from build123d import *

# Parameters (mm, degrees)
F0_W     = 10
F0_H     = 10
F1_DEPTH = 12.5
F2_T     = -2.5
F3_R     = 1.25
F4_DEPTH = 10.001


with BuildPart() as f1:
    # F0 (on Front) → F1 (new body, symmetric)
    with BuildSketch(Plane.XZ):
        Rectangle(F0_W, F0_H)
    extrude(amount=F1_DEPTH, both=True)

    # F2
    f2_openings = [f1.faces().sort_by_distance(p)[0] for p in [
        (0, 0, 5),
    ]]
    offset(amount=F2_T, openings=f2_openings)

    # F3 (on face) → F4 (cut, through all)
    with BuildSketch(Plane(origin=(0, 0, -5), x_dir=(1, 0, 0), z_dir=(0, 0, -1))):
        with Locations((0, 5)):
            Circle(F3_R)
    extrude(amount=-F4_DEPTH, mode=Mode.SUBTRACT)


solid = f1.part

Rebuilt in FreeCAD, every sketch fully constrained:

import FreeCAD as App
import Part
import Sketcher

V = App.Vector
Q = App.Units.Quantity


def faces_at(feature, points):
    """Names of the faces that lie closest to the given points."""
    faces = feature.Shape.Faces
    near = lambda p: min(range(len(faces)), key=lambda i: faces[i].distToShape(Part.Vertex(*p))[0])
    return sorted({f"Face{near(p) + 1}" for p in points})

doc = App.newDocument("Part")
params = doc.addObject("Spreadsheet::Sheet", "Params")
for row, (alias, value) in enumerate([
    ("sketch1_width", "10 mm"),
    ("pad1_length", "25 mm"),
    ("thickness_wall", "2.5 mm"),
    ("sketch2_diameter", "2.5 mm"),
], start=1):
    params.set(f"A{row}", alias)
    params.set(f"B{row}", "=" + value)
    params.setAlias(f"B{row}", alias)

body = doc.addObject("PartDesign::Body", "Body")

# Sketch on XZ plane
sketch1 = body.newObject("Sketcher::SketchObject", "Sketch")
sketch1.AttachmentSupport = (doc.getObject("XZ_Plane"), [""])
sketch1.MapMode = "FlatFace"
sketch1.addGeometry([
    Part.LineSegment(V(-5, 5, 0), V(-5, -5, 0)),
    Part.LineSegment(V(-5, -5, 0), V(5, -5, 0)),
    Part.LineSegment(V(5, -5, 0), V(5, 5, 0)),
    Part.LineSegment(V(5, 5, 0), V(-5, 5, 0)),
], False)
sketch1.addConstraint([
    Sketcher.Constraint("Coincident", 0, 2, 1, 1),
    Sketcher.Constraint("Coincident", 1, 2, 2, 1),
    Sketcher.Constraint("Coincident", 2, 2, 3, 1),
    Sketcher.Constraint("Coincident", 3, 2, 0, 1),
    Sketcher.Constraint("Vertical", 0),
    Sketcher.Constraint("Horizontal", 1),
    Sketcher.Constraint("Vertical", 2),
    Sketcher.Constraint("Horizontal", 3),
    Sketcher.Constraint("Symmetric", 0, 2, 2, 2, -1, 1),
    Sketcher.Constraint("Equal", 3, 0),
    Sketcher.Constraint("DistanceX", 1, 1, 1, 2, Q("10 mm")),
])
sketch1.setExpression("Constraints[10]", "Params.sketch1_width")
pad1 = body.newObject("PartDesign::Pad", "Pad")
pad1.Profile = sketch1
pad1.setExpression("Length", "Params.pad1_length")
pad1.Midplane = True
doc.recompute()

thickness = body.newObject("PartDesign::Thickness", "Thickness")
thickness.Base = (pad1, faces_at(pad1, [(0, 0, 5)]))
thickness.setExpression("Value", "Params.thickness_wall")
thickness.Reversed = True
thickness.Join = "Arc"

# Sketch on XY plane
sketch2 = body.newObject("Sketcher::SketchObject", "Sketch001")
sketch2.AttachmentSupport = (doc.getObject("XY_Plane"), [""])
sketch2.MapMode = "FlatFace"
sketch2.AttachmentOffset = App.Placement(V(0, 0, -5), App.Rotation())
sketch2.addGeometry(Part.Circle(V(0, -5, 0), V(0, 0, 1), 1.25), False)
sketch2.addConstraint([
    Sketcher.Constraint("PointOnObject", 0, 3, -2),
    Sketcher.Constraint("Diameter", 0, Q("2.5 mm")),
    Sketcher.Constraint("DistanceY", 0, 3, -1, 1, Q("5 mm")),
])
sketch2.setExpression("Constraints[1]", "Params.sketch2_diameter")
pocket1 = body.newObject("PartDesign::Pocket", "Pocket")
pocket1.Profile = sketch2
pocket1.Type = "ThroughAll"
pocket1.Reversed = True

doc.recompute()
